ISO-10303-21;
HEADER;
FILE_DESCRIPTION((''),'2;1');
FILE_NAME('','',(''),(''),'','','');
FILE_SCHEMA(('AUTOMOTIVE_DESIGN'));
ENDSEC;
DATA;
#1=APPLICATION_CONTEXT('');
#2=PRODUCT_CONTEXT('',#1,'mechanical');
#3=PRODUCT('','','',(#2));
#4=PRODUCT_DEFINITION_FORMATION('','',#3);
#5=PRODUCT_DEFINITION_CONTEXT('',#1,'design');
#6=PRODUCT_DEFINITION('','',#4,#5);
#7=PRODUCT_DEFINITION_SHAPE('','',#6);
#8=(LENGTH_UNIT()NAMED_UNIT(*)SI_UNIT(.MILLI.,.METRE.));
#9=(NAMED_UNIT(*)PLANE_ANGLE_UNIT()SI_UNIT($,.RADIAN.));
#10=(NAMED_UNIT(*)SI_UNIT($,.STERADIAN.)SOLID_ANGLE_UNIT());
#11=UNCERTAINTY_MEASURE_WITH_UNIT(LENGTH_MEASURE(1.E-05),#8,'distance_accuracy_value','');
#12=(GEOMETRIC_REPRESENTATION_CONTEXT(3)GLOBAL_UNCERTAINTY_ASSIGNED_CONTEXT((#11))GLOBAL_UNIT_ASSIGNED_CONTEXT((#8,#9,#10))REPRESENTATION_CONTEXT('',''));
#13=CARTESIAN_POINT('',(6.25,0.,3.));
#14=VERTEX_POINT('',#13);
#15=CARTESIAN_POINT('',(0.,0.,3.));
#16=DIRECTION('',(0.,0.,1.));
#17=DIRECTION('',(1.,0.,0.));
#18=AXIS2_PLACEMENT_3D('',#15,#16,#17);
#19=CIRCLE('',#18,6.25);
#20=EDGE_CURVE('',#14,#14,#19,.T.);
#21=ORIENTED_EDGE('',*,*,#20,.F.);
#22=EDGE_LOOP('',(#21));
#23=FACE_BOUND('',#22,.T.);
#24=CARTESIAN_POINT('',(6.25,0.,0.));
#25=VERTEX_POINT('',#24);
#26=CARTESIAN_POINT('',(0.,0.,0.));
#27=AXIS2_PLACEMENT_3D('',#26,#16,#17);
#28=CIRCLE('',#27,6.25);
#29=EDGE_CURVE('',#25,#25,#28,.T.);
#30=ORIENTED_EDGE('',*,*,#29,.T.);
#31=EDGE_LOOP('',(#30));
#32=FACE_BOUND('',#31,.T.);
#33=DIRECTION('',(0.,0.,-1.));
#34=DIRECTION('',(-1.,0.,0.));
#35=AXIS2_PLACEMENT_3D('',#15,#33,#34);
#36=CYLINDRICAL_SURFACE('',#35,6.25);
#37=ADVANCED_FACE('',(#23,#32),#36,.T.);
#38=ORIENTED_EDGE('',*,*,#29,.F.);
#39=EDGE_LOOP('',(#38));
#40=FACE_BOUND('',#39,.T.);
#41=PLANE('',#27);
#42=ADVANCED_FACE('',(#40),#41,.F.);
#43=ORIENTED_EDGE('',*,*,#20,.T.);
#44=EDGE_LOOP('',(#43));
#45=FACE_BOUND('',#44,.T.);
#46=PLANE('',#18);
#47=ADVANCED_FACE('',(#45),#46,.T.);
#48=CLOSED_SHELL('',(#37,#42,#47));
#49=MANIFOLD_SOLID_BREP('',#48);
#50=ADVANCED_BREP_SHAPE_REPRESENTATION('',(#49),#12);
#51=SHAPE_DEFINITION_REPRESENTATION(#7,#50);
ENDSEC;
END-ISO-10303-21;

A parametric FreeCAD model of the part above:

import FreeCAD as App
import Part
import Sketcher
from FreeCAD import Vector
Q = App.Units.Quantity

doc = App.newDocument("Part")
body = doc.addObject("PartDesign::Body", "Body")

sketch1 = doc.addObject("Sketcher::SketchObject", "Sketch")
body.addObject(sketch1)
sketch1.AttachmentSupport = (doc.XY_Plane, [""])
sketch1.MapMode = "FlatFace"
sketch1.addGeometry(Part.Circle(Vector(0, 0, 0), Vector(0, 0, 1), 6), False)
sketch1.addConstraint([
    Sketcher.Constraint("Coincident", 0, 3, -1, 1),
    Sketcher.Constraint("Diameter", 0, Q("12.5 mm")),
])
pad1 = doc.addObject("PartDesign::Pad", "Pad")
body.addObject(pad1)
pad1.Profile = sketch1
pad1.Length = 3

doc.recompute()
